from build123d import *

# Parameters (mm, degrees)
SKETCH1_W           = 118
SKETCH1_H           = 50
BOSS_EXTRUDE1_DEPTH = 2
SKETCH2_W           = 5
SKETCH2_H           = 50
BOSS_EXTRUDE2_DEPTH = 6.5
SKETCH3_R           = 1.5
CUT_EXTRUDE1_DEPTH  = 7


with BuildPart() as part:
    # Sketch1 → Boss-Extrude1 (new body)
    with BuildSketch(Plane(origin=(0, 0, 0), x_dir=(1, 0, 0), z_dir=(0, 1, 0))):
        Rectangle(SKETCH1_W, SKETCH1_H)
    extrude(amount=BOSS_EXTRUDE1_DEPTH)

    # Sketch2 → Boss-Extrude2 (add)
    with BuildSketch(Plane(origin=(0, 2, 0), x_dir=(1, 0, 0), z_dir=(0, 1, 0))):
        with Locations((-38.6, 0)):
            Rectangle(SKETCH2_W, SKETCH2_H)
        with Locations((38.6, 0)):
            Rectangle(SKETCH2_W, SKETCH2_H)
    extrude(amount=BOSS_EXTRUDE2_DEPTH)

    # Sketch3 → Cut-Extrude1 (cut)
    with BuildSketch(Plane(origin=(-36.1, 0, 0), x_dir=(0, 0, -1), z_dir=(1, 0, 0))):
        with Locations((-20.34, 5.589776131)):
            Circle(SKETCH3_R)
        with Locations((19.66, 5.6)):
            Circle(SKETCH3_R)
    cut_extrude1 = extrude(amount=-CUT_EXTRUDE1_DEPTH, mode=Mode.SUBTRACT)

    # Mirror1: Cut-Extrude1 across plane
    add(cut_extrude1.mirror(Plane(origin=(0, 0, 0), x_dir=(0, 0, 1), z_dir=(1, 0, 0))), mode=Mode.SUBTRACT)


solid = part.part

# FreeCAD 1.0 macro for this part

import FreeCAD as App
import Part
import Sketcher
from FreeCAD import Vector


def add_polygon(sketch, points):
    """Adds a closed chain of lines whose ends are joined by coincident constraints."""
    first, n = sketch.GeometryCount, len(points)
    for a, b in zip(points, points[1:] + points[:1]):
        sketch.addGeometry(Part.LineSegment(App.Vector(*a, 0), App.Vector(*b, 0)), False)
    for i in range(n):
        sketch.addConstraint(Sketcher.Constraint("Coincident", first + i, 2, first + (i + 1) % n, 1))

doc = App.newDocument("Part")
params = doc.addObject("Spreadsheet::Sheet", "Params")
for row, (alias, value) in enumerate([
    ("sketch1_width", "118 mm"),
    ("sketch1_height", "50 mm"),
    ("pad1_length", "2 mm"),
    ("sketch2_width", "5 mm"),
    ("sketch2_height", "50 mm"),
    ("pad2_length", "6.5 mm"),
    ("sketch3_diameter", "3 mm"),
    ("pocket1_length", "7 mm"),
], start=1):
    params.set(f"A{row}", alias)
    params.set(f"B{row}", "=" + value)
    params.setAlias(f"B{row}", alias)

body = doc.addObject("PartDesign::Body", "Body")

sketch1 = doc.addObject("Sketcher::SketchObject", "Sketch")
body.addObject(sketch1)
sketch1.AttachmentSupport = (doc.XZ_Plane, [""])
sketch1.MapMode = "FlatFace"
add_polygon(sketch1, [(-59, -25), (-59, 25), (59, 25), (59, -25)])
sketch1.addConstraint([
    Sketcher.Constraint("Vertical", 0),
    Sketcher.Constraint("Horizontal", 1),
    Sketcher.Constraint("Vertical", 2),
    Sketcher.Constraint("Horizontal", 3),
    Sketcher.Constraint("Symmetric", 0, 2, 2, 2, -1, 1),
    Sketcher.Constraint("DistanceX", 1, 1, 1, 2, 118.0),
    Sketcher.Constraint("DistanceY", 0, 1, 0, 2, 50.0),
])
sketch1.setExpression("Constraints[9]", "Params.sketch1_width")
sketch1.setExpression("Constraints[10]", "Params.sketch1_height")
pad1 = doc.addObject("PartDesign::Pad", "Pad")
body.addObject(pad1)
pad1.Profile = sketch1
pad1.setExpression("Length", "Params.pad1_length")
pad1.Reversed = True

sketch2 = doc.addObject("Sketcher::SketchObject", "Sketch001")
body.addObject(sketch2)
sketch2.AttachmentSupport = (doc.XZ_Plane, [""])
sketch2.MapMode = "FlatFace"
sketch2.AttachmentOffset = App.Placement(Vector(0, 0, -2), App.Rotation())
add_polygon(sketch2, [(-41, -25), (-41, 25), (-36, 25), (-36, -25)])
add_polygon(sketch2, [(36, -25), (36, 25), (41, 25), (41, -25)])
sketch2.addConstraint([
    Sketcher.Constraint("Vertical", 0),
    Sketcher.Constraint("Horizontal", 1),
    Sketcher.Constraint("Vertical", 2),
    Sketcher.Constraint("Horizontal", 3),
    Sketcher.Constraint("Vertical", 4),
    Sketcher.Constraint("Horizontal", 5),
    Sketcher.Constraint("Vertical", 6),
    Sketcher.Constraint("Horizontal", 7),
    Sketcher.Constraint("Symmetric", 2, 2, 4, 2, -1, 1),
    Sketcher.Constraint("Symmetric", 0, 2, 6, 2, -1, 1),
    Sketcher.Constraint("Horizontal", 1, 2, 4, 2),
    Sketcher.Constraint("DistanceX", 1, 1, 1, 2, 5.0),
    Sketcher.Constraint("DistanceY", 0, 1, 0, 2, 50.0),
    Sketcher.Constraint("DistanceX", 0, 2, -1, 1, 41.1),
])
sketch2.setExpression("Constraints[19]", "Params.sketch2_width")
sketch2.setExpression("Constraints[20]", "Params.sketch2_height")
pad2 = doc.addObject("PartDesign::Pad", "Pad001")
body.addObject(pad2)
pad2.Profile = sketch2
pad2.setExpression("Length", "Params.pad2_length")
pad2.Reversed = True

sketch3 = doc.addObject("Sketcher::SketchObject", "Sketch002")
body.addObject(sketch3)
sketch3.AttachmentSupport = (doc.YZ_Plane, [""])
sketch3.MapMode = "FlatFace"
sketch3.AttachmentOffset = App.Placement(Vector(0, 0, -36.1), App.Rotation())
sketch3.addGeometry([
    Part.Circle(Vector(5.6, 20.3, 0), Vector(0, 0, 1), 1.5),
    Part.Circle(Vector(5.6, -19.7, 0), Vector(0, 0, 1), 1.5),
], False)
sketch3.addConstraint([
    Sketcher.Constraint("Equal", 0, 1),
    Sketcher.Constraint("Diameter", 0, 3.0),
    Sketcher.Constraint("DistanceY", 1, 3, 0, 3, 40.0),
    Sketcher.Constraint("DistanceX", -1, 1, 1, 3, 5.6),
    Sketcher.Constraint("DistanceY", -1, 1, 0, 3, 20.34),
    Sketcher.Constraint("DistanceX", -1, 1, 0, 3, 5.589776),
])
sketch3.setExpression("Constraints[1]", "Params.sketch3_diameter")
pocket1 = doc.addObject("PartDesign::Pocket", "Pocket")
body.addObject(pocket1)
pocket1.Profile = sketch3
pocket1.setExpression("Length", "Params.pocket1_length")
doc.recompute()

mirrored = doc.addObject("PartDesign::Mirrored", "Mirrored")
body.addObject(mirrored)
mirrored.Originals = [pocket1]
mirrored.MirrorPlane = (doc.YZ_Plane, [""])
body.Tip = mirrored

doc.recompute()
